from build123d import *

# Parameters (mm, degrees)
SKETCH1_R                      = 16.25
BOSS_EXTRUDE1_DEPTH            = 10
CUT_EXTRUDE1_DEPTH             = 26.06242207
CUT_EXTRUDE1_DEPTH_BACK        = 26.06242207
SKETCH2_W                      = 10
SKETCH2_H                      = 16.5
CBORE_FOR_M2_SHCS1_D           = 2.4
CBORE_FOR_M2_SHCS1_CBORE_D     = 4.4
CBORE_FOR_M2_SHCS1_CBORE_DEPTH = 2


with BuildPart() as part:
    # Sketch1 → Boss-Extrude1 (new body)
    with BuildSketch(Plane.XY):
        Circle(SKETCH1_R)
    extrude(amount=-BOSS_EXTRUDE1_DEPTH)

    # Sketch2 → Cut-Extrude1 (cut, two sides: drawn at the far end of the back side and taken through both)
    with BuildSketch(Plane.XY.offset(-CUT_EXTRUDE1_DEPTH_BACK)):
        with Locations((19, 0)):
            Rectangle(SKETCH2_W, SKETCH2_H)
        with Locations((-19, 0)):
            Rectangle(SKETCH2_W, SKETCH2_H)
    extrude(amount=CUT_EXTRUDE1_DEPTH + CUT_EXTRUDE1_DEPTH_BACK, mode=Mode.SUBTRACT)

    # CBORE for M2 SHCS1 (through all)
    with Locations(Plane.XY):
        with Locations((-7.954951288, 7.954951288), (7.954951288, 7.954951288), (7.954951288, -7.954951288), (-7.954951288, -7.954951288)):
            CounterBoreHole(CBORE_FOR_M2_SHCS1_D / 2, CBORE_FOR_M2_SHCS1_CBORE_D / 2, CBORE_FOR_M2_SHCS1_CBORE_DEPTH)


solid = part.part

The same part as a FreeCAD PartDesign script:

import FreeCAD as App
import Part
import Sketcher

doc = App.newDocument("Part")
params = doc.addObject("Spreadsheet::Sheet", "Params")
for row, (alias, value) in enumerate([
    ("sketch1_diameter", "32.5 mm"),
    ("pad1_length", "10 mm"),
    ("sketch2_width", "10 mm"),
    ("sketch2_height", "16.5 mm"),
    ("sketch3_diameter", "2.4 mm"),
    ("hole_diameter", "2.4 mm"),
    ("hole_cbore_diameter", "4.4 mm"),
    ("hole_cbore_depth", "2 mm"),
], start=1):
    params.set(f"A{row}", alias)
    params.set(f"B{row}", "=" + value)
    params.setAlias(f"B{row}", alias)

body = doc.addObject("PartDesign::Body", "Body")

# Sketch on XY plane
sketch1 = body.newObject("Sketcher::SketchObject", "Sketch")
sketch1.AttachmentSupport = (doc.getObject("XY_Plane"), [""])
sketch1.MapMode = "FlatFace"
sketch1.addGeometry(Part.Circle(App.Vector(0, 0, 0), App.Vector(0, 0, 1), 16.25), False)
sketch1.addConstraint([
    Sketcher.Constraint("Coincident", 0, 3, -1, 1),
    Sketcher.Constraint("Diameter", 0, 32.5),
])
sketch1.setExpression("Constraints[1]", "Params.sketch1_diameter")
pad1 = body.newObject("PartDesign::Pad", "Pad")
pad1.Profile = sketch1
pad1.setExpression("Length", "Params.pad1_length")
pad1.Reversed = True

# Sketch on XY plane
sketch2 = body.newObject("Sketcher::SketchObject", "Sketch001")
sketch2.AttachmentSupport = (doc.getObject("XY_Plane"), [""])
sketch2.MapMode = "FlatFace"
sketch2.addGeometry([
    Part.LineSegment(App.Vector(14, 8.25, 0), App.Vector(14, -8.25, 0)),  # 0
    Part.LineSegment(App.Vector(14, -8.25, 0), App.Vector(24, -8.25, 0)),  # 1
    Part.LineSegment(App.Vector(24, -8.25, 0), App.Vector(24, 8.25, 0)),  # 2
    Part.LineSegment(App.Vector(24, 8.25, 0), App.Vector(14, 8.25, 0)),  # 3
    Part.LineSegment(App.Vector(-24, 8.25, 0), App.Vector(-24, -8.25, 0)),  # 4
    Part.LineSegment(App.Vector(-24, -8.25, 0), App.Vector(-14, -8.25, 0)),  # 5
    Part.LineSegment(App.Vector(-14, -8.25, 0), App.Vector(-14, 8.25, 0)),  # 6
    Part.LineSegment(App.Vector(-14, 8.25, 0), App.Vector(-24, 8.25, 0)),  # 7
], False)
sketch2.addConstraint([
    Sketcher.Constraint("Coincident", 0, 2, 1, 1),
    Sketcher.Constraint("Coincident", 1, 2, 2, 1),
    Sketcher.Constraint("Coincident", 2, 2, 3, 1),
    Sketcher.Constraint("Coincident", 3, 2, 0, 1),
    Sketcher.Constraint("Coincident", 4, 2, 5, 1),
    Sketcher.Constraint("Coincident", 5, 2, 6, 1),
    Sketcher.Constraint("Coincident", 6, 2, 7, 1),
    Sketcher.Constraint("Coincident", 7, 2, 4, 1),
    Sketcher.Constraint("Vertical", 0),
    Sketcher.Constraint("Horizontal", 1),
    Sketcher.Constraint("Vertical", 2),
    Sketcher.Constraint("Horizontal", 3),
    Sketcher.Constraint("Vertical", 4),
    Sketcher.Constraint("Horizontal", 5),
    Sketcher.Constraint("Vertical", 6),
    Sketcher.Constraint("Horizontal", 7),
    Sketcher.Constraint("Symmetric", 2, 2, 4, 2, -1, 1),
    Sketcher.Constraint("Symmetric", 0, 2, 6, 2, -1, 1),
    Sketcher.Constraint("Horizontal", 1, 2, 4, 2),
    Sketcher.Constraint("DistanceX", 1, 1, 1, 2, 10.0),
    Sketcher.Constraint("DistanceY", 0, 2, 0, 1, 16.5),
    Sketcher.Constraint("DistanceX", -1, 1, 0, 2, 14.0),
])
sketch2.setExpression("Constraints[19]", "Params.sketch2_width")
sketch2.setExpression("Constraints[20]", "Params.sketch2_height")
pocket1 = body.newObject("PartDesign::Pocket", "Pocket")
pocket1.Profile = sketch2
pocket1.Type = "ThroughAll"
pocket1.Midplane = True

# Sketch on XY plane
sketch3 = body.newObject("Sketcher::SketchObject", "Sketch002")
sketch3.AttachmentSupport = (doc.getObject("XY_Plane"), [""])
sketch3.MapMode = "FlatFace"
sketch3.addGeometry([
    Part.Circle(App.Vector(-7.954951, 7.954951, 0), App.Vector(0, 0, 1), 1.2),
    Part.Circle(App.Vector(7.954951, 7.954951, 0), App.Vector(0, 0, 1), 1.2),
    Part.Circle(App.Vector(7.954951, -7.954951, 0), App.Vector(0, 0, 1), 1.2),
    Part.Circle(App.Vector(-7.954951, -7.954951, 0), App.Vector(0, 0, 1), 1.2),
], False)
sketch3.addConstraint([
    Sketcher.Constraint("Equal", 0, 1),
    Sketcher.Constraint("Equal", 1, 2),
    Sketcher.Constraint("Equal", 2, 3),
    Sketcher.Constraint("Symmetric", 0, 3, 2, 3, -1, 1),
    Sketcher.Constraint("Symmetric", 1, 3, 3, 3, -1, 1),
    Sketcher.Constraint("Symmetric", 0, 3, 1, 3, -2),
    Sketcher.Constraint("Diameter", 0, 2.4),
    Sketcher.Constraint("DistanceX", 0, 3, -1, 1, 7.954951),
    Sketcher.Constraint("DistanceY", -1, 1, 0, 3, 7.954951),
])
sketch3.setExpression("Constraints[6]", "Params.sketch3_diameter")
doc.recompute()
hole = body.newObject("PartDesign::Hole", "Hole")
hole.Profile = sketch3
hole.ThreadType = "None"
hole.setExpression("Diameter", "Params.hole_diameter")
hole.DepthType = "ThroughAll"
hole.HoleCutType = "Counterbore"
hole.setExpression("HoleCutDiameter", "Params.hole_cbore_diameter")
hole.setExpression("HoleCutDepth", "Params.hole_cbore_depth")

doc.recompute()
